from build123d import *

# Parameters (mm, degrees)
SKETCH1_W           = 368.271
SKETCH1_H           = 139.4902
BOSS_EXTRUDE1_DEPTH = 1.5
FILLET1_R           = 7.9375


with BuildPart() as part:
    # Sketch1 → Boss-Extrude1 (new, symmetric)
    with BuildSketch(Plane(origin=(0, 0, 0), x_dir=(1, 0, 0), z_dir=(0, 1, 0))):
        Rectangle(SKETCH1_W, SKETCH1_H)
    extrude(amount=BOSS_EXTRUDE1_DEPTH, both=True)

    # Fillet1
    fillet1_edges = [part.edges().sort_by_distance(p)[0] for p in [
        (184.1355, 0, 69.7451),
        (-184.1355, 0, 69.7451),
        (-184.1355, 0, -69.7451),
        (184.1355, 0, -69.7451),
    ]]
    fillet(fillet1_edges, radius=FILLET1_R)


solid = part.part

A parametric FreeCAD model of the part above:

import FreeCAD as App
import Part
import Sketcher
from FreeCAD import Vector
Q = App.Units.Quantity


def edges_at(feature, points):
    """Names of the edges that pass closest to the given points."""
    edges = feature.Shape.Edges
    near = lambda p: min(range(len(edges)), key=lambda i: edges[i].distToShape(Part.Vertex(*p))[0])
    return sorted({f"Edge{near(p) + 1}" for p in points})

doc = App.newDocument("Part")
body = doc.addObject("PartDesign::Body", "Body")

# Sketch on XZ plane
sketch1 = body.newObject("Sketcher::SketchObject", "Sketch")
sketch1.AttachmentSupport = (doc.getObject("XZ_Plane"), [""])
sketch1.MapMode = "FlatFace"
sketch1.addGeometry([
    Part.LineSegment(Vector(-184, -70, 0), Vector(-184, 70, 0)),
    Part.LineSegment(Vector(-184, 70, 0), Vector(184, 70, 0)),
    Part.LineSegment(Vector(184, 70, 0), Vector(184, -70, 0)),
    Part.LineSegment(Vector(184, -70, 0), Vector(-184, -70, 0)),
], False)
sketch1.addConstraint([
    Sketcher.Constraint("Coincident", 0, 2, 1, 1),
    Sketcher.Constraint("Coincident", 1, 2, 2, 1),
    Sketcher.Constraint("Coincident", 2, 2, 3, 1),
    Sketcher.Constraint("Coincident", 3, 2, 0, 1),
    Sketcher.Constraint("Vertical", 0),
    Sketcher.Constraint("Horizontal", 1),
    Sketcher.Constraint("Vertical", 2),
    Sketcher.Constraint("Horizontal", 3),
    Sketcher.Constraint("Symmetric", 0, 2, 2, 2, -1, 1),
    Sketcher.Constraint("DistanceX", 1, 1, 1, 2, Q("368.271 mm")),
    Sketcher.Constraint("DistanceY", 0, 1, 0, 2, Q("139.4902 mm")),
])
pad1 = body.newObject("PartDesign::Pad", "Pad")
pad1.Profile = sketch1
pad1.Length = 3
pad1.Midplane = True
doc.recompute()

fillet = body.newObject("PartDesign::Fillet", "Fillet")
fillet.Base = (pad1, edges_at(pad1, [
    (184.136, 0, 69.745),
    (-184.136, 0, 69.745),
    (-184.136, 0, -69.745),
    (184.136, 0, -69.745),
]))
fillet.Radius = 7.9375

doc.recompute()
